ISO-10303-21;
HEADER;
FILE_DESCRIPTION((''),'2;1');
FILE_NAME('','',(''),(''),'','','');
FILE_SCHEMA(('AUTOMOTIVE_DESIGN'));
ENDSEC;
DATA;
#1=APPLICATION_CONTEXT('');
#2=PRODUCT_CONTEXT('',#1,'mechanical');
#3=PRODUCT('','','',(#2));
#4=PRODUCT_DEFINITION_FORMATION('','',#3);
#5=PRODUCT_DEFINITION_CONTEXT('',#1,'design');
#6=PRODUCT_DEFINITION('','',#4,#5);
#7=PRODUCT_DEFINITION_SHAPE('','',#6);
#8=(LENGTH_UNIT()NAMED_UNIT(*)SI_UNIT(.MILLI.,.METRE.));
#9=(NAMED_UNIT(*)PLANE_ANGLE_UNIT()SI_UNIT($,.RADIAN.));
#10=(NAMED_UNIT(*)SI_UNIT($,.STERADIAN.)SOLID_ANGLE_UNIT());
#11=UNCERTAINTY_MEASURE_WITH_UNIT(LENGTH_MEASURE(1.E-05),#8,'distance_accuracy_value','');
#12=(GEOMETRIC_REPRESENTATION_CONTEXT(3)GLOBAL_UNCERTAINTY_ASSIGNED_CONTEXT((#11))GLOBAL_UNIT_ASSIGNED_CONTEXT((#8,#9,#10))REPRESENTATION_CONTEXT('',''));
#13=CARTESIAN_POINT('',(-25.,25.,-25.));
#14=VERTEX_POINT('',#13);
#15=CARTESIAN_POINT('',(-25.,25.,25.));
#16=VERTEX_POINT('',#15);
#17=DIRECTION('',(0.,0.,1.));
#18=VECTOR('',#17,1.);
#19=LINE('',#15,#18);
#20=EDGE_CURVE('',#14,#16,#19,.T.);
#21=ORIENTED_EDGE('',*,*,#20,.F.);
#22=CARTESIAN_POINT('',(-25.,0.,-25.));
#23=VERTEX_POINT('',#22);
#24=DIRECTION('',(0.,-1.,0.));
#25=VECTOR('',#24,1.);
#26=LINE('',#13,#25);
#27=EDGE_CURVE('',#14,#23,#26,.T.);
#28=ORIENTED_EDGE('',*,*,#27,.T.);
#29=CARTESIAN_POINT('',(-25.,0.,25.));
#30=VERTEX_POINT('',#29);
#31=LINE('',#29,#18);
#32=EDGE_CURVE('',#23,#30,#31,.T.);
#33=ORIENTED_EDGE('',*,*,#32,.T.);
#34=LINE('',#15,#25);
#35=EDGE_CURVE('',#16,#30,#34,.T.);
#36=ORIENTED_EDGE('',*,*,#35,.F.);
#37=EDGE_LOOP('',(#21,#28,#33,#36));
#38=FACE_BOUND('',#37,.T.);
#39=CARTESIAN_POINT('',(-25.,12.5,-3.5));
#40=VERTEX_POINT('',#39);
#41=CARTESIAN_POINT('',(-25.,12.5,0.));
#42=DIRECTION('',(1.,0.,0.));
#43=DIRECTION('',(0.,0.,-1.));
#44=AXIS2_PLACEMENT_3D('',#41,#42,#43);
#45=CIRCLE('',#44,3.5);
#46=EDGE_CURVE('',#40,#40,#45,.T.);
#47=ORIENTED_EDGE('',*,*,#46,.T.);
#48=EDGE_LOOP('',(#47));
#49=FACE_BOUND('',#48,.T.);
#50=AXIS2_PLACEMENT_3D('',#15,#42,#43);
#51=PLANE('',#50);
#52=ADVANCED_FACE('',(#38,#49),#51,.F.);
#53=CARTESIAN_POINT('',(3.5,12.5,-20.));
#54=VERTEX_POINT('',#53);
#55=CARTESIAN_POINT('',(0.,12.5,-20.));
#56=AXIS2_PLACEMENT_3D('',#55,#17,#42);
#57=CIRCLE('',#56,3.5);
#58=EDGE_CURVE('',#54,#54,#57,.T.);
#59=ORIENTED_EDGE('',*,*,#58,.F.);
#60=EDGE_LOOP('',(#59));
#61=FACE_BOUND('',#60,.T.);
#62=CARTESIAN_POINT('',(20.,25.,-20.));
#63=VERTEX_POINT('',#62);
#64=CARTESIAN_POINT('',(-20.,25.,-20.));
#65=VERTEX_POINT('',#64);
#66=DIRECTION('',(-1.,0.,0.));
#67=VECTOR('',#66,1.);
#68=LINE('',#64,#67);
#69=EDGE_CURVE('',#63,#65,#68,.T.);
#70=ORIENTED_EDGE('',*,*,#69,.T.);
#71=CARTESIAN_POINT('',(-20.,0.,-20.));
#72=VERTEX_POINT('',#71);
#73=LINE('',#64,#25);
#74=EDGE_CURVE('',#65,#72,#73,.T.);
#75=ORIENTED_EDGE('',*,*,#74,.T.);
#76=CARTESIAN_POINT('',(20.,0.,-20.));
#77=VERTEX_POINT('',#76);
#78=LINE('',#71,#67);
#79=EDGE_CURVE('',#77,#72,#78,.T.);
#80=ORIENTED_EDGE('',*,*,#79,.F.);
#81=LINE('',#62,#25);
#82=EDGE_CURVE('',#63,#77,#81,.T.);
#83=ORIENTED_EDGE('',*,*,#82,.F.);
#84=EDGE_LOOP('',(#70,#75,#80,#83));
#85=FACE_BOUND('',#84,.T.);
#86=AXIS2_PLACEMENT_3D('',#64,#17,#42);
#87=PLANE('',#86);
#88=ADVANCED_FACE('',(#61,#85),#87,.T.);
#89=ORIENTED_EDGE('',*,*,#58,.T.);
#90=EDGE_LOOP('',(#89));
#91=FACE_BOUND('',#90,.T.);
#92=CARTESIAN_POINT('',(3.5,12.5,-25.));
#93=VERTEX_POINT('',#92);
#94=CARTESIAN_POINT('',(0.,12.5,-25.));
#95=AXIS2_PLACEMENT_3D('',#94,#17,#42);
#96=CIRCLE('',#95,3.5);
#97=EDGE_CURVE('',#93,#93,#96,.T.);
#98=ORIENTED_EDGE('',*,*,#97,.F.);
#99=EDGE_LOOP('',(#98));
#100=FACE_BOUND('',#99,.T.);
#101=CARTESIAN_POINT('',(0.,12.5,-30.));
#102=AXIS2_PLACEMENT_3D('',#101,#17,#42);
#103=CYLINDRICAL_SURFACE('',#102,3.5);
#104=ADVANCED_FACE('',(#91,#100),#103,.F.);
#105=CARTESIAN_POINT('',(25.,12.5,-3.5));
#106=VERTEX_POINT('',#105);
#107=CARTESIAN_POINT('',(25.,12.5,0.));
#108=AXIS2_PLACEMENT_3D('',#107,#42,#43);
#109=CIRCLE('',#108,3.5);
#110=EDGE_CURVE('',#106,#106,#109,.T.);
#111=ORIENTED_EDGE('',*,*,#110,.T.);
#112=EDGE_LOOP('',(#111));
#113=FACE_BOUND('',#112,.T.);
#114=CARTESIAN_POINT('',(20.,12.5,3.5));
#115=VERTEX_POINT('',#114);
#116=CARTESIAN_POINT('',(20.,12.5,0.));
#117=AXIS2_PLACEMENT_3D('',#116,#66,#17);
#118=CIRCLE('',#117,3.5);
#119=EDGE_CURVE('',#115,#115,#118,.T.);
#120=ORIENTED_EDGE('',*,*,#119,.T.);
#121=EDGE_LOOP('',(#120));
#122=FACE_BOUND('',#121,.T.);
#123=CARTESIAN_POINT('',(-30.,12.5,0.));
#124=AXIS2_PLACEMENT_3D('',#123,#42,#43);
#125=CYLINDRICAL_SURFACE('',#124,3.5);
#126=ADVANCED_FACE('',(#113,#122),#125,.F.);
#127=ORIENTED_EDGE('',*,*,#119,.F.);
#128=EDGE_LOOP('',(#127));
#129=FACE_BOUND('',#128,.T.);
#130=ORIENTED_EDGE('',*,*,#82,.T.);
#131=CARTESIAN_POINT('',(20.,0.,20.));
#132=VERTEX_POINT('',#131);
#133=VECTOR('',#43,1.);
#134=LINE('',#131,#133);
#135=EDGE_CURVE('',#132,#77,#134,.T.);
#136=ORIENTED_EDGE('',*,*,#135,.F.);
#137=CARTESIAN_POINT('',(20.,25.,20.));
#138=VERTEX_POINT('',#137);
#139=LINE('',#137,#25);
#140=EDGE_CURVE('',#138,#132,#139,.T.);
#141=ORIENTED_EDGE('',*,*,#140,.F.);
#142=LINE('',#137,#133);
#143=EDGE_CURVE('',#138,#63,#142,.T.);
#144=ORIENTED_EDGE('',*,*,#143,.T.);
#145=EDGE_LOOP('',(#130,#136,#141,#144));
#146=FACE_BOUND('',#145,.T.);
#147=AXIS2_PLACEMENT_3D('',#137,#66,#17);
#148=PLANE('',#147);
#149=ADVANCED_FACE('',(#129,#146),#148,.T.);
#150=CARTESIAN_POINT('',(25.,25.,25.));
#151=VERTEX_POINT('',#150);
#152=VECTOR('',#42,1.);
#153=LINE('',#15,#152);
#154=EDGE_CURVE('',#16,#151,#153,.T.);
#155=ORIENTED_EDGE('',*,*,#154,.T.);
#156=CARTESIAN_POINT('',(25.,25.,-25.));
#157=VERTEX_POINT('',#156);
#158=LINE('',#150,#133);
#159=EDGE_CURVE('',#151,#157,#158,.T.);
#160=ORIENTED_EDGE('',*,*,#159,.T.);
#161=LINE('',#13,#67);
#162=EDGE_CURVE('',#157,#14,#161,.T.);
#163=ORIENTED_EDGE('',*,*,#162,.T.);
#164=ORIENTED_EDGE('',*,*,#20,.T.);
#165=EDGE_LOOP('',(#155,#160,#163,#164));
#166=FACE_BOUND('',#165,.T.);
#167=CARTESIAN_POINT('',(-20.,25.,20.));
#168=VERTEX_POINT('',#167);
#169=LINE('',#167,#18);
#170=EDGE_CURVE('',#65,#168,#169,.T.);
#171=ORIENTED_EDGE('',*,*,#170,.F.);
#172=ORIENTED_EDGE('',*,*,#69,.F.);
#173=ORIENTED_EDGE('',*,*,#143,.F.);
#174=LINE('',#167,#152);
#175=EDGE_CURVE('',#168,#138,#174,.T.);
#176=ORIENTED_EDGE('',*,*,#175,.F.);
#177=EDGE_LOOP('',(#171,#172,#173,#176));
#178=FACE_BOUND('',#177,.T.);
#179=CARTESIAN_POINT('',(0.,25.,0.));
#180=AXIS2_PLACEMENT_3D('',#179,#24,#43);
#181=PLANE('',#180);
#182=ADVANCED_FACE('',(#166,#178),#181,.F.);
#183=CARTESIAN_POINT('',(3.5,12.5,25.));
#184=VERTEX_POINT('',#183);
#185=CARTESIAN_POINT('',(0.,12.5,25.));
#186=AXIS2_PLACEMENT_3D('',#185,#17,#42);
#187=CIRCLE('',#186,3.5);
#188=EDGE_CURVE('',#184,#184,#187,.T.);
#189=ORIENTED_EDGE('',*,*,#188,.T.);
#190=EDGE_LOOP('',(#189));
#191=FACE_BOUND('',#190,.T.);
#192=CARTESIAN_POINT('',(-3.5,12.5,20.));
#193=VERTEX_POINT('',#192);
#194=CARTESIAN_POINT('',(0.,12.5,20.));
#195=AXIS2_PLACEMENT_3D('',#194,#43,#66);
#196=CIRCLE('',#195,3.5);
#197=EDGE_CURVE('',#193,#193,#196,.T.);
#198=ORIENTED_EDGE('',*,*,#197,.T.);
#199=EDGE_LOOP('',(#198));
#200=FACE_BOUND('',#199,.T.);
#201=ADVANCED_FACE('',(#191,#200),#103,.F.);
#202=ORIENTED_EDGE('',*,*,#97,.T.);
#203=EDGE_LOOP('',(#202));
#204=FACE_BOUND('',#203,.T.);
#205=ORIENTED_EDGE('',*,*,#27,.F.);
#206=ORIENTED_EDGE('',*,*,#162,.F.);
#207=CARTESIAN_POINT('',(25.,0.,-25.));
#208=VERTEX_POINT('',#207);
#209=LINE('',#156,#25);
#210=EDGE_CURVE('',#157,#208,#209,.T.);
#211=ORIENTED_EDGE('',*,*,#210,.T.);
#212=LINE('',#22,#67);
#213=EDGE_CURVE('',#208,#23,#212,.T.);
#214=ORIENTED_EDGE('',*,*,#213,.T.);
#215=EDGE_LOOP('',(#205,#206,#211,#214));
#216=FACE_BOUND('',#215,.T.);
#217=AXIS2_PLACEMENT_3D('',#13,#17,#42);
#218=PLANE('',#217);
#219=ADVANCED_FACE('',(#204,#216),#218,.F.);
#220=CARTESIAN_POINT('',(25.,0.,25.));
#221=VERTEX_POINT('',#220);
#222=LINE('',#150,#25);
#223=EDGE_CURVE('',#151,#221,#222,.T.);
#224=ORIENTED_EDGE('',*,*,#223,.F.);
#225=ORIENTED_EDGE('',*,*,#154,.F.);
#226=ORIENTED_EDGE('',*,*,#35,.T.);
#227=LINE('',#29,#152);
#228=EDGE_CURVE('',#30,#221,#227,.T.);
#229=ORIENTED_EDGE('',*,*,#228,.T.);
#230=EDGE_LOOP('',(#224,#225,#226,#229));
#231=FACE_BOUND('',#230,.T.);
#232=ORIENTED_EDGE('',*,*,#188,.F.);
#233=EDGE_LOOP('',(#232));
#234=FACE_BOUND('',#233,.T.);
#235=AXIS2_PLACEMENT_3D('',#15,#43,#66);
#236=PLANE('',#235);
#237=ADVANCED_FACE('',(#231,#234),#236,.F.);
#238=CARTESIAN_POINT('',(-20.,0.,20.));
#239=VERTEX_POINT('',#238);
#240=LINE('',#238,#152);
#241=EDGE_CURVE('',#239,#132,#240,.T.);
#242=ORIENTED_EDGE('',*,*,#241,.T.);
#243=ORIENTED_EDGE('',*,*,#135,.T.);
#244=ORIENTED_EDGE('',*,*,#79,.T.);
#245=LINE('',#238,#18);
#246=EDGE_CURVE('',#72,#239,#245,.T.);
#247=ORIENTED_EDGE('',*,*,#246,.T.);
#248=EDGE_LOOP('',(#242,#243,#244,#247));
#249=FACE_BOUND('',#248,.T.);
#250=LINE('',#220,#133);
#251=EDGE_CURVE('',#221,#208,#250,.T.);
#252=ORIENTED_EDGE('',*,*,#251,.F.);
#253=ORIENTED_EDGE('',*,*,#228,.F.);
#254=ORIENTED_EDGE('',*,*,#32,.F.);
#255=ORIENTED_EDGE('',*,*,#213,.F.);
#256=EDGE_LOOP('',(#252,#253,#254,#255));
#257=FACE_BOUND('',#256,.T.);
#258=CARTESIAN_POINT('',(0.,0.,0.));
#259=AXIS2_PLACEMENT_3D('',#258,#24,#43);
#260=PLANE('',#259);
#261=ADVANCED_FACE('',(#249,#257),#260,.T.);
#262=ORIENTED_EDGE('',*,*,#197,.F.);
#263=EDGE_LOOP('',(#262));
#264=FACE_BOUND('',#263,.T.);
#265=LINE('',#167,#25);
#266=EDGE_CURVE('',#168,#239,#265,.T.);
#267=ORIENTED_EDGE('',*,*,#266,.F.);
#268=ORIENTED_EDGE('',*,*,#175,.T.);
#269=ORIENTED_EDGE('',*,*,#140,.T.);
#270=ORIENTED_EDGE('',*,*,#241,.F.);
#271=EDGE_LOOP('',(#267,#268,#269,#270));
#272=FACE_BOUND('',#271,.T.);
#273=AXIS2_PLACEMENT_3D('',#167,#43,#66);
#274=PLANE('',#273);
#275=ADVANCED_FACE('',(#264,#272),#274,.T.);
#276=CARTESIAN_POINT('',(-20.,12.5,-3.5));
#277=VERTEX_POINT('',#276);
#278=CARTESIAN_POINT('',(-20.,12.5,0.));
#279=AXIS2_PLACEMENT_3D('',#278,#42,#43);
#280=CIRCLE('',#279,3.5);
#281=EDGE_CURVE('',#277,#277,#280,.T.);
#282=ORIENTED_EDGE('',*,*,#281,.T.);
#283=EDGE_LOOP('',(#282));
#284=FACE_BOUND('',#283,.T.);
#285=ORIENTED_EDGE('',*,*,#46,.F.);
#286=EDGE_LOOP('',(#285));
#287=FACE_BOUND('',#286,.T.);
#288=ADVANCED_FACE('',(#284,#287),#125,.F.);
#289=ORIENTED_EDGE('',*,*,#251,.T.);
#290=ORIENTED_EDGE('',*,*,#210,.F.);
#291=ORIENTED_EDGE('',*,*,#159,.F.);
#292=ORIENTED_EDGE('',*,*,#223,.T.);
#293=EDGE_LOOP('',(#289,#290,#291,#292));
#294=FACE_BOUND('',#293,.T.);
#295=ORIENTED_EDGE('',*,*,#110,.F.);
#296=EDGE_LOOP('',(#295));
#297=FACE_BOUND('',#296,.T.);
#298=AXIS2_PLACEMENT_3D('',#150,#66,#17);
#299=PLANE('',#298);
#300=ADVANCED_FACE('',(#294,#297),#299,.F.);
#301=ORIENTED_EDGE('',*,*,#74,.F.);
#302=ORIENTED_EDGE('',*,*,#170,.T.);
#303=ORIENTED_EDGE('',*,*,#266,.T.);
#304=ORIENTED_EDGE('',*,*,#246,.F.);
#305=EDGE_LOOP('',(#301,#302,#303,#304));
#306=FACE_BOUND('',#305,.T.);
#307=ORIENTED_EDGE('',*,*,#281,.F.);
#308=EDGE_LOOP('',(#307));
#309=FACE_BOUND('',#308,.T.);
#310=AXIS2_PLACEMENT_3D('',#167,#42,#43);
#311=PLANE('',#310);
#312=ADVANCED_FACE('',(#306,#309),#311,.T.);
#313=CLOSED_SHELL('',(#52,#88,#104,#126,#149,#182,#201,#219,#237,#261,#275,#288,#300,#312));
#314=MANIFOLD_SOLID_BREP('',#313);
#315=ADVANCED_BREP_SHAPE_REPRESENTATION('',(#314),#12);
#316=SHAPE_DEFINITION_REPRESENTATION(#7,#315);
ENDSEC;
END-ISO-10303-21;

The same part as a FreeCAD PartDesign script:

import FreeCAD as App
import Part
import Sketcher

V = App.Vector
Q = App.Units.Quantity


def add_polygon(sketch, points):
    """Adds a closed chain of lines whose ends are joined by coincident constraints."""
    first, n = sketch.GeometryCount, len(points)
    for a, b in zip(points, points[1:] + points[:1]):
        sketch.addGeometry(Part.LineSegment(App.Vector(*a, 0), App.Vector(*b, 0)), False)
    for i in range(n):
        sketch.addConstraint(Sketcher.Constraint("Coincident", first + i, 2, first + (i + 1) % n, 1))

doc = App.newDocument("Part")
body = doc.addObject("PartDesign::Body", "Body")

# Sketch on XZ plane
sketch1 = doc.addObject("Sketcher::SketchObject", "Sketch")
body.addObject(sketch1)
sketch1.AttachmentSupport = (doc.XZ_Plane, [""])
sketch1.MapMode = "FlatFace"
add_polygon(sketch1, [(-25, -25), (-25, 25), (25, 25), (25, -25)])  # lines 0-3
add_polygon(sketch1, [(20, 20), (-20, 20), (-20, -20), (20, -20)])  # lines 4-7
sketch1.addConstraint([
    Sketcher.Constraint("Vertical", 0),
    Sketcher.Constraint("Horizontal", 1),
    Sketcher.Constraint("Vertical", 2),
    Sketcher.Constraint("Horizontal", 3),
    Sketcher.Constraint("Horizontal", 4),
    Sketcher.Constraint("Vertical", 5),
    Sketcher.Constraint("Horizontal", 6),
    Sketcher.Constraint("Vertical", 7),
    Sketcher.Constraint("Symmetric", 0, 2, 2, 2, -1, 1),
    Sketcher.Constraint("Symmetric", 4, 2, 6, 2, -1, 1),
    Sketcher.Constraint("Equal", 3, 0),
    Sketcher.Constraint("Equal", 6, 5),
    Sketcher.Constraint("DistanceX", 1, 1, 1, 2, Q("50 mm")),
    Sketcher.Constraint("DistanceX", 4, 2, 4, 1, Q("40 mm")),
])
pad1 = doc.addObject("PartDesign::Pad", "Pad")
body.addObject(pad1)
pad1.Profile = sketch1
pad1.Length = 25
pad1.Reversed = True

# Sketch on YZ plane
sketch2 = doc.addObject("Sketcher::SketchObject", "Sketch001")
body.addObject(sketch2)
sketch2.AttachmentSupport = (doc.YZ_Plane, [""])
sketch2.MapMode = "FlatFace"
sketch2.AttachmentOffset = App.Placement(V(0, 0, 25), App.Rotation())
sketch2.addGeometry(Part.Circle(V(12.5, 0, 0), V(0, 0, 1), 3.5), False)
sketch2.addConstraint([
    Sketcher.Constraint("PointOnObject", 0, 3, -1),
    Sketcher.Constraint("Diameter", 0, Q("7 mm")),
    Sketcher.Constraint("DistanceX", -1, 1, 0, 3, Q("12.5 mm")),
])
pocket1 = doc.addObject("PartDesign::Pocket", "Pocket")
body.addObject(pocket1)
pocket1.Profile = sketch2
pocket1.Length = 55

# Sketch on XY plane
sketch3 = doc.addObject("Sketcher::SketchObject", "Sketch002")
body.addObject(sketch3)
sketch3.AttachmentSupport = (doc.XY_Plane, [""])
sketch3.MapMode = "FlatFace"
sketch3.AttachmentOffset = App.Placement(V(0, 0, 25), App.Rotation())
sketch3.addGeometry(Part.Circle(V(0, 12.5, 0), V(0, 0, 1), 3.5), False)
sketch3.addConstraint([
    Sketcher.Constraint("PointOnObject", 0, 3, -2),
    Sketcher.Constraint("Diameter", 0, Q("7 mm")),
    Sketcher.Constraint("DistanceY", -1, 1, 0, 3, Q("12.5 mm")),
])
pocket2 = doc.addObject("PartDesign::Pocket", "Pocket001")
body.addObject(pocket2)
pocket2.Profile = sketch3
pocket2.Length = 55

doc.recompute()
